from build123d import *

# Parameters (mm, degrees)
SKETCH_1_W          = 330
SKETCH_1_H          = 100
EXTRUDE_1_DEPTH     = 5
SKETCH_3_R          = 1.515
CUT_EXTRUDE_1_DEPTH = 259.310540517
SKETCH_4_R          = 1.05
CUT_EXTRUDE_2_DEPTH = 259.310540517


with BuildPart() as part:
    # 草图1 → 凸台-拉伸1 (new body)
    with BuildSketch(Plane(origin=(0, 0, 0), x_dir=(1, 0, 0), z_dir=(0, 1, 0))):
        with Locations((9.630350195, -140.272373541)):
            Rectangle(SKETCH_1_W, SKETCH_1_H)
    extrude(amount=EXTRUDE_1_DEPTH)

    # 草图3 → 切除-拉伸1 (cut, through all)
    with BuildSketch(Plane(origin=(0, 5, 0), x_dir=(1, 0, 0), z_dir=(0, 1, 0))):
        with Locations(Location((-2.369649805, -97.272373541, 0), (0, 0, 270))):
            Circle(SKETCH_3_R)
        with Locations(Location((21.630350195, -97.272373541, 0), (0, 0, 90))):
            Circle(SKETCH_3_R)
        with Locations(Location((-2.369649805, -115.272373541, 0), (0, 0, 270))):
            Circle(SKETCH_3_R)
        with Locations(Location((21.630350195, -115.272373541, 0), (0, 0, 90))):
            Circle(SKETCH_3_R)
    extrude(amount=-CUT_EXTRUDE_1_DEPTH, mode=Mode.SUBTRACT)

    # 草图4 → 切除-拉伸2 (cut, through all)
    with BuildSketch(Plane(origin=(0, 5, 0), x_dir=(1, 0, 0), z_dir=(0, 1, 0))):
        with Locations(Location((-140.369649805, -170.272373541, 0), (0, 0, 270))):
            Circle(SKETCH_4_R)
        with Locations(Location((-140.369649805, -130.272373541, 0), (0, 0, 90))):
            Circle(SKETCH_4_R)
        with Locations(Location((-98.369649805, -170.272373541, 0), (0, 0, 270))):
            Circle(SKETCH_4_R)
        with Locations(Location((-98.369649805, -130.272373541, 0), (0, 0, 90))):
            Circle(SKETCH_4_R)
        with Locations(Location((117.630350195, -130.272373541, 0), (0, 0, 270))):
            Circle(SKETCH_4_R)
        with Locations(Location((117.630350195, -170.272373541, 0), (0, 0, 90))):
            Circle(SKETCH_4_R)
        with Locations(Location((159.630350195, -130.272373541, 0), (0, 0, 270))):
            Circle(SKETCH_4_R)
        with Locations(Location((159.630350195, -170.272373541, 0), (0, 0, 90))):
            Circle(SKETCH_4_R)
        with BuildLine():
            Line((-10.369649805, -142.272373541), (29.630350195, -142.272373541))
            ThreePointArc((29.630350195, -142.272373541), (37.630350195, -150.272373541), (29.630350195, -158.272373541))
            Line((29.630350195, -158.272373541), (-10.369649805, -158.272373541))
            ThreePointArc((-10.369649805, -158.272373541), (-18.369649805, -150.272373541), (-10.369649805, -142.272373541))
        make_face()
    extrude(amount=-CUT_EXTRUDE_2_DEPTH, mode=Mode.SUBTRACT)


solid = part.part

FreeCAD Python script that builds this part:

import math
import FreeCAD as App
import Part
import Sketcher

V = App.Vector

doc = App.newDocument("Part")
body = doc.addObject("PartDesign::Body", "Body")

# Sketch on XZ plane
sketch1 = body.newObject("Sketcher::SketchObject", "Sketch")
sketch1.AttachmentSupport = (doc.getObject("XZ_Plane"), [""])
sketch1.MapMode = "FlatFace"
sketch1.addGeometry([
    Part.LineSegment(V(-155.36965, 90.272374, 0), V(-155.36965, 190.272374, 0)),
    Part.LineSegment(V(-155.36965, 190.272374, 0), V(174.63035, 190.272374, 0)),
    Part.LineSegment(V(174.63035, 190.272374, 0), V(174.63035, 90.272374, 0)),
    Part.LineSegment(V(174.63035, 90.272374, 0), V(-155.36965, 90.272374, 0)),
], False)
sketch1.addConstraint([
    Sketcher.Constraint("Coincident", 0, 2, 1, 1),
    Sketcher.Constraint("Coincident", 1, 2, 2, 1),
    Sketcher.Constraint("Coincident", 2, 2, 3, 1),
    Sketcher.Constraint("Coincident", 3, 2, 0, 1),
    Sketcher.Constraint("Vertical", 0),
    Sketcher.Constraint("Horizontal", 1),
    Sketcher.Constraint("Vertical", 2),
    Sketcher.Constraint("Horizontal", 3),
    Sketcher.Constraint("DistanceX", 1, 1, 1, 2, 330.0),
    Sketcher.Constraint("DistanceY", 0, 1, 0, 2, 100.0),
    Sketcher.Constraint("DistanceX", 0, 2, -1, 1, 155.36965),
    Sketcher.Constraint("DistanceY", -1, 1, 0, 2, 190.272374),
])
pad1 = body.newObject("PartDesign::Pad", "Pad")
pad1.Profile = sketch1
pad1.Length = 5
pad1.Reversed = True

# Sketch on XZ plane
sketch2 = body.newObject("Sketcher::SketchObject", "Sketch001")
sketch2.AttachmentSupport = (doc.getObject("XZ_Plane"), [""])
sketch2.MapMode = "FlatFace"
sketch2.AttachmentOffset = App.Placement(V(0, 0, -5), App.Rotation())
sketch2.addGeometry([
    Part.Circle(V(-2.36965, 97.272374, 0), V(0, 0, 1), 1.515),
    Part.Circle(V(21.63035, 97.272374, 0), V(0, 0, 1), 1.515),
    Part.Circle(V(-2.36965, 115.272374, 0), V(0, 0, 1), 1.515),
    Part.Circle(V(21.63035, 115.272374, 0), V(0, 0, 1), 1.515),
], False)
sketch2.addConstraint([
    Sketcher.Constraint("Equal", 0, 1),
    Sketcher.Constraint("Equal", 1, 2),
    Sketcher.Constraint("Equal", 2, 3),
    Sketcher.Constraint("Horizontal", 0, 3, 1, 3),
    Sketcher.Constraint("Horizontal", 2, 3, 3, 3),
    Sketcher.Constraint("Vertical", 0, 3, 2, 3),
    Sketcher.Constraint("Vertical", 1, 3, 3, 3),
    Sketcher.Constraint("Diameter", 0, 3.03),
    Sketcher.Constraint("DistanceX", 0, 3, 1, 3, 24.0),
    Sketcher.Constraint("DistanceY", 0, 3, 2, 3, 18.0),
    Sketcher.Constraint("DistanceX", 0, 3, -1, 1, 2.36965),
    Sketcher.Constraint("DistanceY", -1, 1, 0, 3, 97.272374),
])
pocket1 = body.newObject("PartDesign::Pocket", "Pocket")
pocket1.Profile = sketch2
pocket1.Type = "ThroughAll"
pocket1.Reversed = True

# Sketch on XZ plane
sketch3 = body.newObject("Sketcher::SketchObject", "Sketch002")
sketch3.AttachmentSupport = (doc.getObject("XZ_Plane"), [""])
sketch3.MapMode = "FlatFace"
sketch3.AttachmentOffset = App.Placement(V(0, 0, -5), App.Rotation())
sketch3.addGeometry([
    Part.Circle(V(-140.36965, 170.272374, 0), V(0, 0, 1), 1.05),  # 0
    Part.Circle(V(-140.36965, 130.272374, 0), V(0, 0, 1), 1.05),  # 1
    Part.Circle(V(-98.36965, 170.272374, 0), V(0, 0, 1), 1.05),  # 2
    Part.Circle(V(-98.36965, 130.272374, 0), V(0, 0, 1), 1.05),  # 3
    Part.Circle(V(117.63035, 130.272374, 0), V(0, 0, 1), 1.05),  # 4
    Part.Circle(V(117.63035, 170.272374, 0), V(0, 0, 1), 1.05),  # 5
    Part.Circle(V(159.63035, 130.272374, 0), V(0, 0, 1), 1.05),  # 6
    Part.Circle(V(159.63035, 170.272374, 0), V(0, 0, 1), 1.05),  # 7
    Part.LineSegment(V(29.63035, 142.272374, 0), V(-10.36965, 142.272374, 0)),  # 8
    Part.ArcOfCircle(Part.Circle(V(-10.36965, 150.272374, 0), V(0, 0, 1), 8), math.radians(90), math.radians(270)),  # 9
    Part.LineSegment(V(-10.36965, 158.272374, 0), V(29.63035, 158.272374, 0)),  # 10
    Part.ArcOfCircle(Part.Circle(V(29.63035, 150.272374, 0), V(0, 0, 1), 8), math.radians(-90), math.radians(90)),  # 11
], False)
sketch3.addConstraint([
    Sketcher.Constraint("Tangent", 8, 2, 9, 2),
    Sketcher.Constraint("Tangent", 9, 1, 10, 1),
    Sketcher.Constraint("Tangent", 10, 2, 11, 2),
    Sketcher.Constraint("Tangent", 11, 1, 8, 1),
    Sketcher.Constraint("Horizontal", 8),
    Sketcher.Constraint("Horizontal", 10),
    Sketcher.Constraint("Equal", 0, 1),
    Sketcher.Constraint("Equal", 1, 2),
    Sketcher.Constraint("Equal", 2, 3),
    Sketcher.Constraint("Equal", 3, 4),
    Sketcher.Constraint("Equal", 4, 5),
    Sketcher.Constraint("Equal", 5, 6),
    Sketcher.Constraint("Equal", 6, 7),
    Sketcher.Constraint("Horizontal", 0, 3, 2, 3),
    Sketcher.Constraint("Horizontal", 1, 3, 3, 3),
    Sketcher.Constraint("Horizontal", 3, 3, 4, 3),
    Sketcher.Constraint("Horizontal", 2, 3, 5, 3),
    Sketcher.Constraint("Horizontal", 4, 3, 6, 3),
    Sketcher.Constraint("Horizontal", 5, 3, 7, 3),
    Sketcher.Constraint("Vertical", 0, 3, 1, 3),
    Sketcher.Constraint("Vertical", 2, 3, 3, 3),
    Sketcher.Constraint("Vertical", 4, 3, 5, 3),
    Sketcher.Constraint("Vertical", 6, 3, 7, 3),
    Sketcher.Constraint("Radius", 9, 8.0),
    Sketcher.Constraint("Diameter", 0, 2.1),
    Sketcher.Constraint("DistanceX", 8, 2, 8, 1, 40.0),
    Sketcher.Constraint("DistanceY", 1, 3, 0, 3, 40.0),
    Sketcher.Constraint("DistanceX", 0, 3, 2, 3, 42.0),
    Sketcher.Constraint("DistanceX", 3, 3, 4, 3, 216.0),
    Sketcher.Constraint("DistanceX", 4, 3, 6, 3, 42.0),
    Sketcher.Constraint("DistanceX", 2, 3, 9, 3, 88.0),
    Sketcher.Constraint("DistanceY", 9, 3, 2, 3, 20.0),
    Sketcher.Constraint("DistanceX", 0, 3, -1, 1, 140.36965),
    Sketcher.Constraint("DistanceY", -1, 1, 0, 3, 170.272374),
])
pocket2 = body.newObject("PartDesign::Pocket", "Pocket001")
pocket2.Profile = sketch3
pocket2.Type = "ThroughAll"
pocket2.Reversed = True

doc.recompute()
